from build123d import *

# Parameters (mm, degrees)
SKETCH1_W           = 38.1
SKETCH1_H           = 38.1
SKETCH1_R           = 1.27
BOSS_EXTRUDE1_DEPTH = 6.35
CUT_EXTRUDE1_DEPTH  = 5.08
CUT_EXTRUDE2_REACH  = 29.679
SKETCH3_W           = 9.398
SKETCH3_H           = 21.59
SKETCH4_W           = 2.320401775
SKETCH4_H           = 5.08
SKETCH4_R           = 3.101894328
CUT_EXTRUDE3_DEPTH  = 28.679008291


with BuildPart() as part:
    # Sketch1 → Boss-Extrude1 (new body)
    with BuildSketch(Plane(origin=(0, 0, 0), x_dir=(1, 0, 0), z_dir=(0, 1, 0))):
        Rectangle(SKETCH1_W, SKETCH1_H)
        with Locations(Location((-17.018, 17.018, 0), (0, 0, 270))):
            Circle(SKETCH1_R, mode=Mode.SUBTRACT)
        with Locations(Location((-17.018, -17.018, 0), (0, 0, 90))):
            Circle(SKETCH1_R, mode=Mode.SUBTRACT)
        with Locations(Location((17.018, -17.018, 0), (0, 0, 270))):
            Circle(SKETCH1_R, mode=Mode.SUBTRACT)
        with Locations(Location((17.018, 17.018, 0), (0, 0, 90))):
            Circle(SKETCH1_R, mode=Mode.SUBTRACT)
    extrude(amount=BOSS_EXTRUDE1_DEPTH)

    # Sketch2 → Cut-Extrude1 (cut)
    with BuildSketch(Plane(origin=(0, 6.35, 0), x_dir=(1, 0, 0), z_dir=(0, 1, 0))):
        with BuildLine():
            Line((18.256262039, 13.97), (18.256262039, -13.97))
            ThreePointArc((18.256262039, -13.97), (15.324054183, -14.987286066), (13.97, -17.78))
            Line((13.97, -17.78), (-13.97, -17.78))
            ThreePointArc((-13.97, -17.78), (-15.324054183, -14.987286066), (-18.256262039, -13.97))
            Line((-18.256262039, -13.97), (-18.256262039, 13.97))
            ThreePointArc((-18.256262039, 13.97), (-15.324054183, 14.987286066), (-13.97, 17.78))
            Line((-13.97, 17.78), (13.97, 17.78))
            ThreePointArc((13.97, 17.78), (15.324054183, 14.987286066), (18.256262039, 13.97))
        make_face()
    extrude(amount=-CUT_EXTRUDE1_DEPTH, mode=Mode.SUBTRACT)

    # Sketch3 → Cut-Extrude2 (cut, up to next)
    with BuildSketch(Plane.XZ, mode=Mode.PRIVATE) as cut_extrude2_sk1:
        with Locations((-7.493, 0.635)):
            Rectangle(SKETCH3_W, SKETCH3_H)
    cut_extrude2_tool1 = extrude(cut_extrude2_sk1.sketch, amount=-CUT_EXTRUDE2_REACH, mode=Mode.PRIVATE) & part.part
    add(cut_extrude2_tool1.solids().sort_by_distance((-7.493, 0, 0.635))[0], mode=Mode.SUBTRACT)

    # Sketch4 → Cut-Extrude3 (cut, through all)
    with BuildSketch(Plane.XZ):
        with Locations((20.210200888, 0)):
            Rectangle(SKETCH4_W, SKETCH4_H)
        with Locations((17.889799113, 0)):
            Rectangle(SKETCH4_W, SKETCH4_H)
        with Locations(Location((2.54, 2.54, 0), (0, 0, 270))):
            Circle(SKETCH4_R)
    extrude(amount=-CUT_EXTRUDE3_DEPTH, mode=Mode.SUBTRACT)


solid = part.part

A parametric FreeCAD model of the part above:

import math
import FreeCAD as App
import Part
import Sketcher
Q = App.Units.Quantity


def add_polygon(sketch, points):
    """Adds a closed chain of lines whose ends are joined by coincident constraints."""
    first, n = sketch.GeometryCount, len(points)
    for a, b in zip(points, points[1:] + points[:1]):
        sketch.addGeometry(Part.LineSegment(App.Vector(*a, 0), App.Vector(*b, 0)), False)
    for i in range(n):
        sketch.addConstraint(Sketcher.Constraint("Coincident", first + i, 2, first + (i + 1) % n, 1))

doc = App.newDocument("Part")
body = doc.addObject("PartDesign::Body", "Body")

# Sketch on XZ plane
sketch1 = body.newObject("Sketcher::SketchObject", "Sketch")
sketch1.AttachmentSupport = (doc.getObject("XZ_Plane"), [""])
sketch1.MapMode = "FlatFace"
add_polygon(sketch1, [(-19.1, -19.1), (-19.1, 19.1), (19.1, 19.1), (19.1, -19.1)])  # lines 0-3
sketch1.addGeometry(Part.Circle(App.Vector(-17, 17, 0), App.Vector(0, 0, 1), 1.3), False)  # 4
sketch1.addGeometry(Part.Circle(App.Vector(17, 17, 0), App.Vector(0, 0, 1), 1.3), False)  # 5
sketch1.addGeometry(Part.Circle(App.Vector(-17, -17, 0), App.Vector(0, 0, 1), 1.3), False)  # 6
sketch1.addGeometry(Part.Circle(App.Vector(17, -17, 0), App.Vector(0, 0, 1), 1.3), False)  # 7
sketch1.addConstraint(Sketcher.Constraint("Vertical", 0))
sketch1.addConstraint(Sketcher.Constraint("Horizontal", 1))
sketch1.addConstraint(Sketcher.Constraint("Vertical", 2))
sketch1.addConstraint(Sketcher.Constraint("Horizontal", 3))
sketch1.addConstraint(Sketcher.Constraint("Equal", 4, 5))
sketch1.addConstraint(Sketcher.Constraint("Equal", 5, 6))
sketch1.addConstraint(Sketcher.Constraint("Equal", 6, 7))
sketch1.addConstraint(Sketcher.Constraint("Symmetric", 5, 3, 6, 3, -1, 1))
sketch1.addConstraint(Sketcher.Constraint("Symmetric", 4, 3, 7, 3, -1, 1))
sketch1.addConstraint(Sketcher.Constraint("Symmetric", 0, 2, 2, 2, -1, 1))
sketch1.addConstraint(Sketcher.Constraint("Symmetric", 4, 3, 5, 3, -2))
sketch1.addConstraint(Sketcher.Constraint("Equal", 3, 0))
sketch1.addConstraint(Sketcher.Constraint("Diameter", 4, Q("0.1 in")))
sketch1.addConstraint(Sketcher.Constraint("DistanceX", 1, 1, 1, 2, Q("1.5 in")))
sketch1.addConstraint(Sketcher.Constraint("DistanceX", 4, 3, -1, 1, Q("0.67 in")))
sketch1.addConstraint(Sketcher.Constraint("DistanceY", -1, 1, 4, 3, Q("0.67 in")))
pad1 = body.newObject("PartDesign::Pad", "Pad")
pad1.Profile = sketch1
pad1.Length = Q("0.25 in")
pad1.Reversed = True

# Sketch on XZ plane
sketch2 = body.newObject("Sketcher::SketchObject", "Sketch001")
sketch2.AttachmentSupport = (doc.getObject("XZ_Plane"), [""])
sketch2.MapMode = "FlatFace"
sketch2.AttachmentOffset = App.Placement(App.Vector(0, 0, -0.25 * 25.4), App.Rotation())
sketch2.addGeometry(Part.LineSegment(App.Vector(18.3, 14, 0), App.Vector(18.3, -14, 0)), False)
sketch2.addGeometry(Part.ArcOfCircle(Part.Circle(App.Vector(18, -18, 0), App.Vector(0, 0, 1), 4.1), math.radians(87), math.radians(177)), False)
sketch2.addGeometry(Part.LineSegment(App.Vector(14, -17.8, 0), App.Vector(-14, -17.8, 0)), False)
sketch2.addGeometry(Part.ArcOfCircle(Part.Circle(App.Vector(-18, -18, 0), App.Vector(0, 0, 1), 4.1), math.radians(3), math.radians(93)), False)
sketch2.addGeometry(Part.LineSegment(App.Vector(-18.3, -14, 0), App.Vector(-18.3, 14, 0)), False)
sketch2.addGeometry(Part.ArcOfCircle(Part.Circle(App.Vector(-18, 18, 0), App.Vector(0, 0, 1), 4.1), math.radians(-93), math.radians(-3)), False)
sketch2.addGeometry(Part.LineSegment(App.Vector(-14, 17.8, 0), App.Vector(14, 17.8, 0)), False)
sketch2.addGeometry(Part.ArcOfCircle(Part.Circle(App.Vector(18, 18, 0), App.Vector(0, 0, 1), 4.1), math.radians(-177), math.radians(-87)), False)
sketch2.addConstraint(Sketcher.Constraint("Coincident", 0, 2, 1, 1))
sketch2.addConstraint(Sketcher.Constraint("Coincident", 1, 2, 2, 1))
sketch2.addConstraint(Sketcher.Constraint("Coincident", 2, 2, 3, 1))
sketch2.addConstraint(Sketcher.Constraint("Coincident", 3, 2, 4, 1))
sketch2.addConstraint(Sketcher.Constraint("Coincident", 4, 2, 5, 1))
sketch2.addConstraint(Sketcher.Constraint("Coincident", 5, 2, 6, 1))
sketch2.addConstraint(Sketcher.Constraint("Coincident", 6, 2, 7, 1))
sketch2.addConstraint(Sketcher.Constraint("Coincident", 7, 2, 0, 1))
sketch2.addConstraint(Sketcher.Constraint("Vertical", 0))
sketch2.addConstraint(Sketcher.Constraint("Horizontal", 2))
sketch2.addConstraint(Sketcher.Constraint("Vertical", 4))
sketch2.addConstraint(Sketcher.Constraint("Horizontal", 6))
sketch2.addConstraint(Sketcher.Constraint("Equal", 1, 3))
sketch2.addConstraint(Sketcher.Constraint("Equal", 3, 5))
sketch2.addConstraint(Sketcher.Constraint("Equal", 5, 7))
sketch2.addConstraint(Sketcher.Constraint("Symmetric", 1, 3, 5, 3, -1, 1))
sketch2.addConstraint(Sketcher.Constraint("Symmetric", 3, 3, 7, 3, -1, 1))
sketch2.addConstraint(Sketcher.Constraint("Symmetric", 1, 3, 3, 3, -2))
sketch2.addConstraint(Sketcher.Constraint("Horizontal", 0, 2, 3, 2))
sketch2.addConstraint(Sketcher.Constraint("Vertical", 2, 2, 5, 2))
sketch2.addConstraint(Sketcher.Constraint("Equal", 6, 0))
sketch2.addConstraint(Sketcher.Constraint("DistanceX", 2, 2, 2, 1, Q("1.1 in")))
sketch2.addConstraint(Sketcher.Constraint("DistanceY", 1, 2, -1, 1, Q("0.7 in")))
sketch2.addConstraint(Sketcher.Constraint("Radius", 1, Q("4.055129 mm")))
sketch2.addConstraint(Sketcher.Constraint("DistanceY", 1, 3, -1, 1, Q("18.018131 mm")))
pocket1 = body.newObject("PartDesign::Pocket", "Pocket")
pocket1.Profile = sketch2
pocket1.Length = Q("0.2 in")
pocket1.Reversed = True

# Sketch on XZ plane
sketch3 = body.newObject("Sketcher::SketchObject", "Sketch002")
sketch3.AttachmentSupport = (doc.getObject("XZ_Plane"), [""])
sketch3.MapMode = "FlatFace"
add_polygon(sketch3, [(-12, 11), (-12, -10), (-3, -10), (-3, 11)])  # lines 0-3
sketch3.addConstraint(Sketcher.Constraint("Vertical", 0))
sketch3.addConstraint(Sketcher.Constraint("Horizontal", 1))
sketch3.addConstraint(Sketcher.Constraint("Vertical", 2))
sketch3.addConstraint(Sketcher.Constraint("Horizontal", 3))
sketch3.addConstraint(Sketcher.Constraint("DistanceX", 1, 1, 1, 2, Q("0.37 in")))
sketch3.addConstraint(Sketcher.Constraint("DistanceY", 0, 2, 0, 1, Q("0.85 in")))
sketch3.addConstraint(Sketcher.Constraint("DistanceY", 0, 2, -1, 1, Q("0.4 in")))
sketch3.addConstraint(Sketcher.Constraint("DistanceX", 0, 2, -1, 1, Q("0.48 in")))
pocket2 = body.newObject("PartDesign::Pocket", "Pocket001")
pocket2.Profile = sketch3
pocket2.Type = "UpToFirst"

# Sketch on XZ plane
sketch4 = body.newObject("Sketcher::SketchObject", "Sketch003")
sketch4.AttachmentSupport = (doc.getObject("XZ_Plane"), [""])
sketch4.MapMode = "FlatFace"
add_polygon(sketch4, [(21.4, -2.5), (21.4, 2.5), (16.7, 2.5), (16.7, -2.5)])  # lines 0-3
sketch4.addGeometry(Part.Circle(App.Vector(2.5, 2.5, 0), App.Vector(0, 0, 1), 3.1), False)  # 4
sketch4.addConstraint(Sketcher.Constraint("Vertical", 0))
sketch4.addConstraint(Sketcher.Constraint("Horizontal", 1))
sketch4.addConstraint(Sketcher.Constraint("Vertical", 2))
sketch4.addConstraint(Sketcher.Constraint("Horizontal", 3))
sketch4.addConstraint(Sketcher.Constraint("Horizontal", 4, 3, 0, 2))
sketch4.addConstraint(Sketcher.Constraint("DistanceY", 0, 1, 0, 2, Q("0.2 in")))
sketch4.addConstraint(Sketcher.Constraint("DistanceX", -1, 1, 4, 3, Q("0.1 in")))
sketch4.addConstraint(Sketcher.Constraint("DistanceY", -1, 1, 4, 3, Q("0.1 in")))
sketch4.addConstraint(Sketcher.Constraint("Diameter", 4, Q("6.203789 mm")))
sketch4.addConstraint(Sketcher.Constraint("DistanceX", -1, 1, 0, 2, Q("21.370402 mm")))
sketch4.addConstraint(Sketcher.Constraint("DistanceX", -1, 1, 1, 2, Q("16.729598 mm")))
pocket3 = body.newObject("PartDesign::Pocket", "Pocket002")
pocket3.Profile = sketch4
pocket3.Type = "ThroughAll"

doc.recompute()
